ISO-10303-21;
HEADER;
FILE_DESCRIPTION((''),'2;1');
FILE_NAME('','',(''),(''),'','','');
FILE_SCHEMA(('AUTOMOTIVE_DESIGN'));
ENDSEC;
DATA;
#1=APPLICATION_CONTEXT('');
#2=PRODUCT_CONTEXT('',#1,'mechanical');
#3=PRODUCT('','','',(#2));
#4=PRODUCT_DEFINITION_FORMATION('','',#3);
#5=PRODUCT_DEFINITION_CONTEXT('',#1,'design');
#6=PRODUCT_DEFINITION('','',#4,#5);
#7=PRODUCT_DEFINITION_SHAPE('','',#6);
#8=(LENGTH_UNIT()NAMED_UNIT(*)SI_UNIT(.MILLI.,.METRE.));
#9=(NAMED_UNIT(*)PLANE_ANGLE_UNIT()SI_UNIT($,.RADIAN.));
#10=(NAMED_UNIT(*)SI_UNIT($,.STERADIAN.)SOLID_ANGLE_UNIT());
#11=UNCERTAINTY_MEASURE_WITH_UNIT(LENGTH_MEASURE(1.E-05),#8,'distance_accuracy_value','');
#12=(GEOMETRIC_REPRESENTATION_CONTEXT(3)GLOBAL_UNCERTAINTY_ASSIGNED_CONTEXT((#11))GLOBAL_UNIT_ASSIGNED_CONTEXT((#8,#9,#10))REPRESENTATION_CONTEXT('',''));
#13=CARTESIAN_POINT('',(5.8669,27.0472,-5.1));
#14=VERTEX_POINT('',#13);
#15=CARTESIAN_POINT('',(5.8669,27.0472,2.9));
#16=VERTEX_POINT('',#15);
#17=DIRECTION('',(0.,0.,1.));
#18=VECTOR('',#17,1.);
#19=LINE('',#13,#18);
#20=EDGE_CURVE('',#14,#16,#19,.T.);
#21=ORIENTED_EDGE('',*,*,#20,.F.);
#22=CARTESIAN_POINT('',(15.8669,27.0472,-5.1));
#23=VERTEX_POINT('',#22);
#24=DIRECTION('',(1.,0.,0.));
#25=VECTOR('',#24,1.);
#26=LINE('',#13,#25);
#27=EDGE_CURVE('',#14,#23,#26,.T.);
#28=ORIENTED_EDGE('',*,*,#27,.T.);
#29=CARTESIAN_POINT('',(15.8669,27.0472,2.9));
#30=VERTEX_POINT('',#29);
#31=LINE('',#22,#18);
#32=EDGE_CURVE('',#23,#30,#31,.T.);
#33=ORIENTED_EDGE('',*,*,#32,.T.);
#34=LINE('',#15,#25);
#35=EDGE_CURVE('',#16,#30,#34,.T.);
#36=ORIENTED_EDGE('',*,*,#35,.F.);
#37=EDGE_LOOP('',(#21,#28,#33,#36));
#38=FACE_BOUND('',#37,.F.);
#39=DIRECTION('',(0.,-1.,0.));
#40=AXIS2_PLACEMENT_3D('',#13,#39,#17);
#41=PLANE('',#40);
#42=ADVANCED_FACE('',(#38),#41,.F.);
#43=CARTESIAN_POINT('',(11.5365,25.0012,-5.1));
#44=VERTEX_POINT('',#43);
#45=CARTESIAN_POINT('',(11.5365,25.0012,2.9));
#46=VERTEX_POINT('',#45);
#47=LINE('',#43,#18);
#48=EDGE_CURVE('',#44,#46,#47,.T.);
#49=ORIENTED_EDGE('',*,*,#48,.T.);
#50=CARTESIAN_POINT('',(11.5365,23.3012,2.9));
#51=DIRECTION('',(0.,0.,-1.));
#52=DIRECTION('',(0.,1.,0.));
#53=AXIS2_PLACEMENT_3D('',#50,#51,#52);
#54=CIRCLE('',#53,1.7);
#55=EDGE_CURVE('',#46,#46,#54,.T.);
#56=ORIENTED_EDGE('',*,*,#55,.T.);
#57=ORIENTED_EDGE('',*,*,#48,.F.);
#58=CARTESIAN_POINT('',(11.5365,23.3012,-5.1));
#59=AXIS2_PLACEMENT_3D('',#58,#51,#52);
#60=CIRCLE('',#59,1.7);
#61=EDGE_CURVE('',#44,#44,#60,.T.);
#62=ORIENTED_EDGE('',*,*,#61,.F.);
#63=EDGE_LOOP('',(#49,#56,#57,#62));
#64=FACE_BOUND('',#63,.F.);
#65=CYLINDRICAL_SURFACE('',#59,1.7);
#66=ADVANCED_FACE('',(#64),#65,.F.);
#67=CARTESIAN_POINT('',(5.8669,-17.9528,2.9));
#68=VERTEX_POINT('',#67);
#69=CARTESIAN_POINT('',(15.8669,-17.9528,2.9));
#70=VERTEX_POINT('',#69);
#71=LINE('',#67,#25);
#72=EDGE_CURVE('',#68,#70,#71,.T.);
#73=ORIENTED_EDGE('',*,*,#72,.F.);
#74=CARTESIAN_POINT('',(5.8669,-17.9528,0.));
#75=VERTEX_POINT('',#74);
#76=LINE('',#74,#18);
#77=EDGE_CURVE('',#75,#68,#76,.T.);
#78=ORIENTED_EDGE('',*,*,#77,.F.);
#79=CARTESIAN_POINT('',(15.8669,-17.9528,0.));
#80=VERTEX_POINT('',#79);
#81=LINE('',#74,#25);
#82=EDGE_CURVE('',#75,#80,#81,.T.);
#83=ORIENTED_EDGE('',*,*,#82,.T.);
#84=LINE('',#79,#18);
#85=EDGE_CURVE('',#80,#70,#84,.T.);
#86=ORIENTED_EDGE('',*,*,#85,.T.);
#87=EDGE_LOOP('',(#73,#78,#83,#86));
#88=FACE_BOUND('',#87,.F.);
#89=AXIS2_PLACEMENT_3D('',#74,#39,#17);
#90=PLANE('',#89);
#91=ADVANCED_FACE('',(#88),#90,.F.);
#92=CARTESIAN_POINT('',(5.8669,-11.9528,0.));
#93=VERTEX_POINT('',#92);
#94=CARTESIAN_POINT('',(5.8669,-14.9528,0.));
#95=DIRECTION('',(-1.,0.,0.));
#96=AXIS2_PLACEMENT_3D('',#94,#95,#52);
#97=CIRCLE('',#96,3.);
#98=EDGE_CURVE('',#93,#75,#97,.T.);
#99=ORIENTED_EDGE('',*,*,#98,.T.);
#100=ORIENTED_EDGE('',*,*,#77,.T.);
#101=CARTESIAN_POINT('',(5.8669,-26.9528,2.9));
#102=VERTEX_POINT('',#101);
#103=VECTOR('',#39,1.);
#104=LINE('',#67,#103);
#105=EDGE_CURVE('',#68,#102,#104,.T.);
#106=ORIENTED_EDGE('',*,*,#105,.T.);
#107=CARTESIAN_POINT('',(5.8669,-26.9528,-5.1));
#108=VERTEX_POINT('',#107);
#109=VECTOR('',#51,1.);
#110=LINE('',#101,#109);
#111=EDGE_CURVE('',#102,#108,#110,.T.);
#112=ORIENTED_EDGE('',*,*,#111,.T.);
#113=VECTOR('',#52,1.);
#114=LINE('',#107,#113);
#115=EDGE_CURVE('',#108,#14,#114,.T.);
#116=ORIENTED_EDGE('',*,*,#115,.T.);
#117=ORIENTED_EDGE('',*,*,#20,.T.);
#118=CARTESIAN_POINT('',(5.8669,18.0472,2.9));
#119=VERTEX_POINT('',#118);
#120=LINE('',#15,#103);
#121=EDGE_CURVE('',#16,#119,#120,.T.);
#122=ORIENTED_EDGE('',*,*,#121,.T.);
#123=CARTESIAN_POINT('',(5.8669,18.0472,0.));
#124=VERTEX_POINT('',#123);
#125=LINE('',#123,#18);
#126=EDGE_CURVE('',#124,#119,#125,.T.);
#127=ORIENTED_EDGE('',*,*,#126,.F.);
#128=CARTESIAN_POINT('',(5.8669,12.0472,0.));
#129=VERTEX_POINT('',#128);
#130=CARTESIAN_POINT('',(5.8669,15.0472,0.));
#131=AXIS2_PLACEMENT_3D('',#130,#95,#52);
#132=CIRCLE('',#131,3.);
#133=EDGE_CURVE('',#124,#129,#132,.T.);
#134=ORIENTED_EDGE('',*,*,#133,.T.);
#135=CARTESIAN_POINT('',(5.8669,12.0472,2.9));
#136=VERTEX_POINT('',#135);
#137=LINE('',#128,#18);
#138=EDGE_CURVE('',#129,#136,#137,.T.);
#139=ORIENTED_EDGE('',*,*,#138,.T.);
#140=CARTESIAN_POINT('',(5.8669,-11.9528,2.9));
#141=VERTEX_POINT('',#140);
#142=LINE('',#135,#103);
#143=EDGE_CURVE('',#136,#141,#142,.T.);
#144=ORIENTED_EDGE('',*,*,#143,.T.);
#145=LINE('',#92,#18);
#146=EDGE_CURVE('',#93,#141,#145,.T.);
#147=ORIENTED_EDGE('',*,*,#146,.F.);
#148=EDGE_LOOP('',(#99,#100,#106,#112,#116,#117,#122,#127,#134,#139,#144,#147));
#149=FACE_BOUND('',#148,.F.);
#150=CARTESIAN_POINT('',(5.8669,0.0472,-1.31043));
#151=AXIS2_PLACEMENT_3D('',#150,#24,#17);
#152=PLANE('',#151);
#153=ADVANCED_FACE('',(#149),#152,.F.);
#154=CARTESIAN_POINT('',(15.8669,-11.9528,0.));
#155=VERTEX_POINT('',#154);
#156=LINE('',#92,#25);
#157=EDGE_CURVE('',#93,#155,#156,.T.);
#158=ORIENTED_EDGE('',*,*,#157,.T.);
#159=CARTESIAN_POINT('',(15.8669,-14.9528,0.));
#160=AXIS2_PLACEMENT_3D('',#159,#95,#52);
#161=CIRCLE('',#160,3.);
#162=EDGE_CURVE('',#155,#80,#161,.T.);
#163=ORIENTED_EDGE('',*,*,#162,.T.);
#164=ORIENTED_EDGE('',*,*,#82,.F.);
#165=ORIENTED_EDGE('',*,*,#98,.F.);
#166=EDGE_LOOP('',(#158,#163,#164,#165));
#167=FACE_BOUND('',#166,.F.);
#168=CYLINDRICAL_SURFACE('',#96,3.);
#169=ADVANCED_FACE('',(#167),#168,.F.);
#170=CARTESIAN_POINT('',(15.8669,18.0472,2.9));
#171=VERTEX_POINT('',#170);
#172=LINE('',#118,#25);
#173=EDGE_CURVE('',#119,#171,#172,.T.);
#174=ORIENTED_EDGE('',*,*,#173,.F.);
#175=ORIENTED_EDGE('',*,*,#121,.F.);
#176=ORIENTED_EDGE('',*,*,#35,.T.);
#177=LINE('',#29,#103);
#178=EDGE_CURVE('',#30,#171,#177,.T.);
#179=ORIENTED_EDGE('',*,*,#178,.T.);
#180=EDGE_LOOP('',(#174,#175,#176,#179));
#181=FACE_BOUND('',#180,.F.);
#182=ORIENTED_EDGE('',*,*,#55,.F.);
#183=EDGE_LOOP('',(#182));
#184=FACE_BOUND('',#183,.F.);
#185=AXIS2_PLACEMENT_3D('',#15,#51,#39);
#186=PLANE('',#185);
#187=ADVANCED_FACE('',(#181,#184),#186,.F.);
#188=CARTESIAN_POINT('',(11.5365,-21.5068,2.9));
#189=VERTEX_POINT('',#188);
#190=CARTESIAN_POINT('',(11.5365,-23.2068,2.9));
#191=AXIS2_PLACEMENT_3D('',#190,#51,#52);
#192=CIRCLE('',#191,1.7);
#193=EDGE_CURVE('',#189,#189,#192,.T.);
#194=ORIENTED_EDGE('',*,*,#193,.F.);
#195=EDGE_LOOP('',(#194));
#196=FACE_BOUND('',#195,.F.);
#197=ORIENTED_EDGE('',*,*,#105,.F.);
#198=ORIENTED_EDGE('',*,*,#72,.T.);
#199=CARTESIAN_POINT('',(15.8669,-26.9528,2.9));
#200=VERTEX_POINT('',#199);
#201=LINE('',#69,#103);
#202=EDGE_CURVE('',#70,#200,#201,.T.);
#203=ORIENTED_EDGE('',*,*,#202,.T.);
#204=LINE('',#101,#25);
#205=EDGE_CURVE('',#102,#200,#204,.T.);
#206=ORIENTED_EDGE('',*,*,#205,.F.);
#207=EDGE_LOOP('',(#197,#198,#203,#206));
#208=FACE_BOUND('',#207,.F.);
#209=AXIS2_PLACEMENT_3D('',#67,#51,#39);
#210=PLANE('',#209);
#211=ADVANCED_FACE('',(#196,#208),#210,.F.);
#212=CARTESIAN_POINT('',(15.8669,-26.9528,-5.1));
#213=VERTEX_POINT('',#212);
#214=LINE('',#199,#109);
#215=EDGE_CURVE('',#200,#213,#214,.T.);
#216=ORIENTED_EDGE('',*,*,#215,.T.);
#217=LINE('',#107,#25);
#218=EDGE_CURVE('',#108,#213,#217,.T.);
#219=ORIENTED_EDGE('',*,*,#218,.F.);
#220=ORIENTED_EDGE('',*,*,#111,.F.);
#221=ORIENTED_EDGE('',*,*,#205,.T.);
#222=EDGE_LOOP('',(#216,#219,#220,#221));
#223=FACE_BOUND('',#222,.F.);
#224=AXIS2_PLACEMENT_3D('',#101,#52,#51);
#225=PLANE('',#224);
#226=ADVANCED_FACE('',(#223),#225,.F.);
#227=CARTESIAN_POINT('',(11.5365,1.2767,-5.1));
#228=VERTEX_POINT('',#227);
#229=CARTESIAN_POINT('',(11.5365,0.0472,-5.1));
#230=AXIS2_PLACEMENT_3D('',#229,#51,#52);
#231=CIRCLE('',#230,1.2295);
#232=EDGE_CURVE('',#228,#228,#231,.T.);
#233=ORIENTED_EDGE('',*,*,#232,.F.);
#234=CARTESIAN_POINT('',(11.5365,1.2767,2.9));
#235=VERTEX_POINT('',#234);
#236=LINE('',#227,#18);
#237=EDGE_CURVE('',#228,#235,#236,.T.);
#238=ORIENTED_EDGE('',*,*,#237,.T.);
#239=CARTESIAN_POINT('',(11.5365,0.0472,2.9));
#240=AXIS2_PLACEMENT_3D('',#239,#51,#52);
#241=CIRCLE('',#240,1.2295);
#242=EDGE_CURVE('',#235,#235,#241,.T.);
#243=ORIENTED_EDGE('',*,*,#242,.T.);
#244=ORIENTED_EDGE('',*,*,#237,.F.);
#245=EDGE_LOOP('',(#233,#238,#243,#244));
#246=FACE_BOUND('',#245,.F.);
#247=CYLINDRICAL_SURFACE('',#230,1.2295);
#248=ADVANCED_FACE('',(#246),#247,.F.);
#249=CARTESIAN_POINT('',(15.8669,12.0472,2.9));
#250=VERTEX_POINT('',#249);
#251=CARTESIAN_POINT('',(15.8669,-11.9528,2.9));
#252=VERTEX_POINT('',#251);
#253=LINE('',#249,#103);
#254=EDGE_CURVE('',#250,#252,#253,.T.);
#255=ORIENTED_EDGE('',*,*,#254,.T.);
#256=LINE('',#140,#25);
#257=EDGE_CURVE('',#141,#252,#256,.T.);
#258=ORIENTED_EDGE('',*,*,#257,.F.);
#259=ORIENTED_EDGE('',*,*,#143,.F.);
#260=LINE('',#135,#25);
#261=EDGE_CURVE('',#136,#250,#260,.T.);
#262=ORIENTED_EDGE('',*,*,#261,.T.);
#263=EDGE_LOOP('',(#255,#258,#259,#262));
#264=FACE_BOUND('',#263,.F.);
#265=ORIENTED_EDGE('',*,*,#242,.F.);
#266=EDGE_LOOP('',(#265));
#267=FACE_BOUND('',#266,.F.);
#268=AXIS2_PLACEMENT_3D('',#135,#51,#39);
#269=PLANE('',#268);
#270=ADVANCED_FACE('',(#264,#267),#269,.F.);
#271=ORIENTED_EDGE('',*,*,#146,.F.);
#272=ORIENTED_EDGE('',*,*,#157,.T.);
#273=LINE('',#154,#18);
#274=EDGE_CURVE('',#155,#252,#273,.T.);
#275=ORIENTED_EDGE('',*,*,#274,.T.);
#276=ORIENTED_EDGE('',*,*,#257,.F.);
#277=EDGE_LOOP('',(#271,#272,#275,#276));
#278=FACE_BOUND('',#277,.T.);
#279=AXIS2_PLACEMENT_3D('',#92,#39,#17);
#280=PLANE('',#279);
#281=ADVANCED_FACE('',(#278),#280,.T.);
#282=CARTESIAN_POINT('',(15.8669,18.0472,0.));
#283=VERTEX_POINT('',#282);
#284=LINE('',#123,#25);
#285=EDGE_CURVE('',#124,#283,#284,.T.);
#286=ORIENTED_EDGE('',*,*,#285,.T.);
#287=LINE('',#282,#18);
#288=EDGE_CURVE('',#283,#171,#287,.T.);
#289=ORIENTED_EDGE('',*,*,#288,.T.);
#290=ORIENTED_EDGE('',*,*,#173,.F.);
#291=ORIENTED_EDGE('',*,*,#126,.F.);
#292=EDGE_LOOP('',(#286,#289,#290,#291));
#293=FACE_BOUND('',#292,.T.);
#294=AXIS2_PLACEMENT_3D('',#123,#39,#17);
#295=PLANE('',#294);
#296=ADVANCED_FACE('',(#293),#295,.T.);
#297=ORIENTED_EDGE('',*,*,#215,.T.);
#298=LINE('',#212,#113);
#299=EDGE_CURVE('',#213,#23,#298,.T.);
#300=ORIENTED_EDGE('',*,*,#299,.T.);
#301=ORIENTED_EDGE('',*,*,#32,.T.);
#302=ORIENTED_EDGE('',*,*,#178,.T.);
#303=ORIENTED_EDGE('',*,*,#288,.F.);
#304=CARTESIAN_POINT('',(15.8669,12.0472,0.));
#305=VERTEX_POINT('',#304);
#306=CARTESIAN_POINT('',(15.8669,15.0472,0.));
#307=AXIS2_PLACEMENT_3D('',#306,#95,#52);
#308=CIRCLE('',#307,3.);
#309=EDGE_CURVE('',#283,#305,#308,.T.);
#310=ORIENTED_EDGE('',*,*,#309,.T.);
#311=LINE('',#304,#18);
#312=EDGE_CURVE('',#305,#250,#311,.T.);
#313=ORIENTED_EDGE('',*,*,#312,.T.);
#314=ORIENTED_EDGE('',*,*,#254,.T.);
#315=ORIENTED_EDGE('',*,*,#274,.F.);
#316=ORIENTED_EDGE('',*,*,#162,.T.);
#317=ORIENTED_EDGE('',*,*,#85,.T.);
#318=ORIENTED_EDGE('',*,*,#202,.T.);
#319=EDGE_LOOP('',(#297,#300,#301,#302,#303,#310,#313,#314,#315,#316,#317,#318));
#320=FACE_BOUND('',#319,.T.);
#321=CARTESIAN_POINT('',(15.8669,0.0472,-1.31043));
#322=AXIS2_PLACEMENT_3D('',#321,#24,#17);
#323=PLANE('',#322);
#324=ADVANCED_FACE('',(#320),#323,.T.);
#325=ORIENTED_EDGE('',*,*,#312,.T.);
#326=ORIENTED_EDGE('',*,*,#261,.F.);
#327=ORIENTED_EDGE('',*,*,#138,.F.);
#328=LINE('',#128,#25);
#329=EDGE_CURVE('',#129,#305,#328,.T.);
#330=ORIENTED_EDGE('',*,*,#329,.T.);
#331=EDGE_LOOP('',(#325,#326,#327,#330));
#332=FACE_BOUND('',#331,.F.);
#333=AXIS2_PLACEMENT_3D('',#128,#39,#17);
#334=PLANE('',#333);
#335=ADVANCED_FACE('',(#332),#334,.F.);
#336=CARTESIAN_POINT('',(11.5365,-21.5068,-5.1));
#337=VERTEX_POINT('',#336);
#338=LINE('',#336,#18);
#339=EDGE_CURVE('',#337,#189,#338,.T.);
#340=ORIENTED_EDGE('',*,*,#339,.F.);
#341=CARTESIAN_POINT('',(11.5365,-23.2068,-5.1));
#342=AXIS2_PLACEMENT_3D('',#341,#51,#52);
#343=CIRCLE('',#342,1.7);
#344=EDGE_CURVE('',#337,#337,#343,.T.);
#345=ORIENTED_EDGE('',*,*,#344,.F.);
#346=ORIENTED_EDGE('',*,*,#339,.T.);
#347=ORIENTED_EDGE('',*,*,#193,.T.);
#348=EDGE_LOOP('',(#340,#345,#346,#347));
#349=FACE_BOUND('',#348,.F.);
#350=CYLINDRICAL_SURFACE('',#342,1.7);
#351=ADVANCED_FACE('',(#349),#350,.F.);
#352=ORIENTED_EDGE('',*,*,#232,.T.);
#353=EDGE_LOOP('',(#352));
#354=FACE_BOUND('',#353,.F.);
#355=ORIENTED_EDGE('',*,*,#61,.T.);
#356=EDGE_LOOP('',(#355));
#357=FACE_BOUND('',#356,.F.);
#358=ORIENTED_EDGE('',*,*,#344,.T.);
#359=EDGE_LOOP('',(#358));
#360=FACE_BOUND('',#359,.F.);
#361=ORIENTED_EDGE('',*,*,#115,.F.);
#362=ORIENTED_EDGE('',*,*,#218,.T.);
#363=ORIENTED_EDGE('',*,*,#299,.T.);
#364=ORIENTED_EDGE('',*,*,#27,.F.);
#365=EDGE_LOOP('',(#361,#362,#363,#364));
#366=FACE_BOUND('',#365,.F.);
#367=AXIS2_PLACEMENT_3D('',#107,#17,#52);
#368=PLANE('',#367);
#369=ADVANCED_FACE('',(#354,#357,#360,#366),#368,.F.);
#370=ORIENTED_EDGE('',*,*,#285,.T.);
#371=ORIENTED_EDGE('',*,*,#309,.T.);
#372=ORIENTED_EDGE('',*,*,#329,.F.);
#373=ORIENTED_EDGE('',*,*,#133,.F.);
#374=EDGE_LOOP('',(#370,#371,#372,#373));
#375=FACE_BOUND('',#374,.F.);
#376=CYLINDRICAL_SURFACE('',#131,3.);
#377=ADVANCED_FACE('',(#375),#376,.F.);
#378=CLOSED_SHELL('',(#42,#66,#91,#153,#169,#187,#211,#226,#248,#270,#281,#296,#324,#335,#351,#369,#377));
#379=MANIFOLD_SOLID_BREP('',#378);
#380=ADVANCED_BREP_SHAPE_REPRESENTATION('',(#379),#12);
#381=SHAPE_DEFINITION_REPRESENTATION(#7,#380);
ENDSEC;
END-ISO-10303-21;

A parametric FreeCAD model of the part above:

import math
import FreeCAD as App
import Part
import Sketcher
Q = App.Units.Quantity

doc = App.newDocument("Part")
body = doc.addObject("PartDesign::Body", "Body")

# Sketch on YZ plane
sketch1 = body.newObject("Sketcher::SketchObject", "Sketch")
sketch1.AttachmentSupport = (doc.getObject("YZ_Plane"), [""])
sketch1.MapMode = "FlatFace"
sketch1.AttachmentOffset = App.Placement(App.Vector(0, 0, 5.8669), App.Rotation())
sketch1.addGeometry([
    Part.LineSegment(App.Vector(-12, 2.9, 0), App.Vector(-12, 0, 0)),  # 0
    Part.ArcOfCircle(Part.Circle(App.Vector(-15, 0, 0), App.Vector(0, 0, 1), 3), math.radians(180), math.radians(360)),  # 1
    Part.LineSegment(App.Vector(-18, 0, 0), App.Vector(-18, 2.9, 0)),  # 2
    Part.LineSegment(App.Vector(-18, 2.9, 0), App.Vector(-27, 2.9, 0)),  # 3
    Part.LineSegment(App.Vector(-27, 2.9, 0), App.Vector(-27, -5.1, 0)),  # 4
    Part.LineSegment(App.Vector(-27, -5.1, 0), App.Vector(27, -5.1, 0)),  # 5
    Part.LineSegment(App.Vector(27, -5.1, 0), App.Vector(27, 2.9, 0)),  # 6
    Part.LineSegment(App.Vector(27, 2.9, 0), App.Vector(18, 2.9, 0)),  # 7
    Part.LineSegment(App.Vector(18, 2.9, 0), App.Vector(18, 0, 0)),  # 8
    Part.ArcOfCircle(Part.Circle(App.Vector(15, 0, 0), App.Vector(0, 0, 1), 3), math.radians(180), math.radians(360)),  # 9
    Part.LineSegment(App.Vector(12, 0, 0), App.Vector(12, 2.9, 0)),  # 10
    Part.LineSegment(App.Vector(12, 2.9, 0), App.Vector(-12, 2.9, 0)),  # 11
], False)
sketch1.addConstraint([
    Sketcher.Constraint("Tangent", 0, 2, 1, 2),
    Sketcher.Constraint("Tangent", 1, 1, 2, 1),
    Sketcher.Constraint("Coincident", 2, 2, 3, 1),
    Sketcher.Constraint("Coincident", 3, 2, 4, 1),
    Sketcher.Constraint("Coincident", 4, 2, 5, 1),
    Sketcher.Constraint("Coincident", 5, 2, 6, 1),
    Sketcher.Constraint("Coincident", 6, 2, 7, 1),
    Sketcher.Constraint("Coincident", 7, 2, 8, 1),
    Sketcher.Constraint("Tangent", 8, 2, 9, 2),
    Sketcher.Constraint("Tangent", 9, 1, 10, 1),
    Sketcher.Constraint("Coincident", 10, 2, 11, 1),
    Sketcher.Constraint("Coincident", 11, 2, 0, 1),
    Sketcher.Constraint("Vertical", 0),
    Sketcher.Constraint("Vertical", 2),
    Sketcher.Constraint("Horizontal", 3),
    Sketcher.Constraint("Vertical", 4),
    Sketcher.Constraint("Horizontal", 5),
    Sketcher.Constraint("Vertical", 6),
    Sketcher.Constraint("Horizontal", 7),
    Sketcher.Constraint("Vertical", 8),
    Sketcher.Constraint("Vertical", 10),
    Sketcher.Constraint("Horizontal", 11),
    Sketcher.Constraint("Equal", 1, 9),
    Sketcher.Constraint("PointOnObject", 1, 3, -1),
    Sketcher.Constraint("PointOnObject", 9, 3, -1),
    Sketcher.Constraint("Horizontal", 3, 2, 6, 2),
    Sketcher.Constraint("Horizontal", 7, 2, 10, 2),
    Sketcher.Constraint("Equal", 3, 7),
    Sketcher.Constraint("Radius", 1, Q("3 mm")),
    Sketcher.Constraint("DistanceX", 3, 2, 3, 1, Q("9 mm")),
    Sketcher.Constraint("DistanceX", 5, 1, 5, 2, Q("54 mm")),
    Sketcher.Constraint("DistanceY", 4, 2, 4, 1, Q("8 mm")),
    Sketcher.Constraint("DistanceY", 0, 2, 0, 1, Q("2.9 mm")),
    Sketcher.Constraint("DistanceX", 1, 3, -1, 1, Q("14.9528 mm")),
])
pad1 = body.newObject("PartDesign::Pad", "Pad")
pad1.Profile = sketch1
pad1.Length = 10

# Sketch on XY plane
sketch2 = body.newObject("Sketcher::SketchObject", "Sketch001")
sketch2.AttachmentSupport = (doc.getObject("XY_Plane"), [""])
sketch2.MapMode = "FlatFace"
sketch2.AttachmentOffset = App.Placement(App.Vector(0, 0, -5.1), App.Rotation())
sketch2.addGeometry([
    Part.Circle(App.Vector(11.5, -23.2, 0), App.Vector(0, 0, 1), 1.7),
    Part.Circle(App.Vector(11.5, 0, 0), App.Vector(0, 0, 1), 1.2),
    Part.Circle(App.Vector(11.5, 23.3, 0), App.Vector(0, 0, 1), 1.7),
], False)
sketch2.addConstraint([
    Sketcher.Constraint("Equal", 0, 2),
    Sketcher.Constraint("Vertical", 0, 3, 1, 3),
    Sketcher.Constraint("Vertical", 1, 3, 2, 3),
    Sketcher.Constraint("Diameter", 0, Q("3.4 mm")),
    Sketcher.Constraint("Diameter", 1, Q("2.459 mm")),
    Sketcher.Constraint("DistanceY", 0, 3, 1, 3, Q("23.254 mm")),
    Sketcher.Constraint("DistanceY", 1, 3, 2, 3, Q("23.254 mm")),
    Sketcher.Constraint("DistanceX", -1, 1, 0, 3, Q("11.5365 mm")),
    Sketcher.Constraint("DistanceY", 0, 3, -1, 1, Q("23.2068 mm")),
])
pocket1 = body.newObject("PartDesign::Pocket", "Pocket")
pocket1.Profile = sketch2
pocket1.Type = "UpToFirst"
pocket1.Reversed = True

doc.recompute()
